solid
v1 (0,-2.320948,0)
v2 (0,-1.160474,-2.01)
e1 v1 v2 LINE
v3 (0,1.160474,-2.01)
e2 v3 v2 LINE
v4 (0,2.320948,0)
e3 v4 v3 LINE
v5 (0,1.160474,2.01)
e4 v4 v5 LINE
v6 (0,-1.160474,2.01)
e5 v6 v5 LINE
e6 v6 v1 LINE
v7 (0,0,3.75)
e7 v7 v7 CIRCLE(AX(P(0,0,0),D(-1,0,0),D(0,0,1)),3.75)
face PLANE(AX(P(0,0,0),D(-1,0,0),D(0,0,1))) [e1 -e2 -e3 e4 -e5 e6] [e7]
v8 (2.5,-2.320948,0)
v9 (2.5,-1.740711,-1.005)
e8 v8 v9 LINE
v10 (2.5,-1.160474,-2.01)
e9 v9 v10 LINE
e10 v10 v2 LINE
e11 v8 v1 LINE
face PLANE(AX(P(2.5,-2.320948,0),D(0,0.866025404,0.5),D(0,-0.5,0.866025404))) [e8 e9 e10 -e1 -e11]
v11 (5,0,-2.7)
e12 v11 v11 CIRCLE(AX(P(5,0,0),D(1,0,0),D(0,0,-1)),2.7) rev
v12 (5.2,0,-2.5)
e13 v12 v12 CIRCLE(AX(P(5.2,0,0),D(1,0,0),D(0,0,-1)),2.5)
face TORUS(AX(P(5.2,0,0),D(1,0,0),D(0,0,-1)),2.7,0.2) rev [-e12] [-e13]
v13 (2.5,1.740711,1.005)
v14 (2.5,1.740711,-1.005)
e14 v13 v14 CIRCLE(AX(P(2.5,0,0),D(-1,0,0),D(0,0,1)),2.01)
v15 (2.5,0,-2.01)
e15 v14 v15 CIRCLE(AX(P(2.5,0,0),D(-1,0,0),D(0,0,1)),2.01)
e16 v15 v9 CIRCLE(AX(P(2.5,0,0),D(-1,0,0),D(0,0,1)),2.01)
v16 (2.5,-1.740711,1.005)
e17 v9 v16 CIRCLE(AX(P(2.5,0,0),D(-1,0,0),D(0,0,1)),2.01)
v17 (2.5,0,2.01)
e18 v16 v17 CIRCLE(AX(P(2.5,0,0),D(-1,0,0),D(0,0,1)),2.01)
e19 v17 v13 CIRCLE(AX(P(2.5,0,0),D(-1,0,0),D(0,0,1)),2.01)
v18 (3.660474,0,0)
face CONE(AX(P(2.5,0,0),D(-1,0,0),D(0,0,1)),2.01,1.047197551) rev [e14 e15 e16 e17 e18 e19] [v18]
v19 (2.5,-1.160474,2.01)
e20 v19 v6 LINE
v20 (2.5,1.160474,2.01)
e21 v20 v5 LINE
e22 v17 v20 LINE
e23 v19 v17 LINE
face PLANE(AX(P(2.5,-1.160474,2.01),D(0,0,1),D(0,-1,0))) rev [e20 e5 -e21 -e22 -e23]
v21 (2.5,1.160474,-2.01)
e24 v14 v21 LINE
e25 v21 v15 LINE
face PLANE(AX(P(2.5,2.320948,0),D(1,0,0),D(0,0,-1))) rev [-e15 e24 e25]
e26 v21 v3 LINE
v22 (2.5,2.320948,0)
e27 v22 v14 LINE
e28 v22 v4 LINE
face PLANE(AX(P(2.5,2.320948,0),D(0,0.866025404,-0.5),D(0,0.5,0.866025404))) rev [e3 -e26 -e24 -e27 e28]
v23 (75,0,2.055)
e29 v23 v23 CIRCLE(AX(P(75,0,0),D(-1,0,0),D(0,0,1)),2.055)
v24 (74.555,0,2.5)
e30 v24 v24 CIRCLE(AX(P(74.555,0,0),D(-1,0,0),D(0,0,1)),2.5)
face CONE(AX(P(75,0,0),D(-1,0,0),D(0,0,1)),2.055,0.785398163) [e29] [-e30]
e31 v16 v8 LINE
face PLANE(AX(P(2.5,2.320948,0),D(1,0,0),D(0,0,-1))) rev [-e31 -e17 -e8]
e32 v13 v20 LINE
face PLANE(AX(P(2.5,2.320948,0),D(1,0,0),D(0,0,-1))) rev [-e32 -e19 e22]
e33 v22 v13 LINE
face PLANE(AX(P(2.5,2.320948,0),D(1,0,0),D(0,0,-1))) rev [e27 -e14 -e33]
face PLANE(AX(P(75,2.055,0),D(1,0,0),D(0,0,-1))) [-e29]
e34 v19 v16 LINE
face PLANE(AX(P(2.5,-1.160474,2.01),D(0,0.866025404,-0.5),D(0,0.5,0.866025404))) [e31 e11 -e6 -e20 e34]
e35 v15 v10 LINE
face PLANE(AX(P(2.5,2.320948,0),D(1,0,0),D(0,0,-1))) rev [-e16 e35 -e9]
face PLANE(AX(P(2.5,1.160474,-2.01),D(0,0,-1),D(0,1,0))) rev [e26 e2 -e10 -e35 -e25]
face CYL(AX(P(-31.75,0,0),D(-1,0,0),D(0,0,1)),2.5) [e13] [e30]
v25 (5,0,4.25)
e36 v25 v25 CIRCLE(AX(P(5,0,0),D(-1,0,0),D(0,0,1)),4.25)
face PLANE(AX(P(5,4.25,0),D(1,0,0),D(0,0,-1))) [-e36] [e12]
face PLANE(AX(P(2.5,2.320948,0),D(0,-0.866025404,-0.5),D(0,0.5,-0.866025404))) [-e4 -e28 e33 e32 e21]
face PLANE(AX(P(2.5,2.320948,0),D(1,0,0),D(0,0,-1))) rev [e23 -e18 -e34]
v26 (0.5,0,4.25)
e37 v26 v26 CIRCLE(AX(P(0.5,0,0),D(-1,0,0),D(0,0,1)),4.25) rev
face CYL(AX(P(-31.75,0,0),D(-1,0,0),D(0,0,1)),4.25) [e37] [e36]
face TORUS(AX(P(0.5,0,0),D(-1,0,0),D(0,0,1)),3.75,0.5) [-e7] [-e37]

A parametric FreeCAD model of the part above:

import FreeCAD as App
import Part
import Sketcher

V = App.Vector
Q = App.Units.Quantity


def edges_at(feature, points):
    """Names of the edges that pass closest to the given points."""
    edges = feature.Shape.Edges
    near = lambda p: min(range(len(edges)), key=lambda i: edges[i].distToShape(Part.Vertex(*p))[0])
    return sorted({f"Edge{near(p) + 1}" for p in points})

doc = App.newDocument("Part")
body = doc.addObject("PartDesign::Body", "Body")

sketch1 = body.newObject("Sketcher::SketchObject", "Sketch")
sketch1.AttachmentSupport = (doc.getObject("XY_Plane"), [""])
sketch1.MapMode = "FlatFace"
sketch1.addGeometry([
    Part.LineSegment(V(0, 4.2, 0), V(0, 0, 0)),
    Part.LineSegment(V(0, 0, 0), V(75, 0, 0)),
    Part.LineSegment(V(75, 0, 0), V(75, 2.1, 0)),
    Part.LineSegment(V(75, 2.1, 0), V(74.6, 2.5, 0)),
    Part.LineSegment(V(74.6, 2.5, 0), V(5, 2.5, 0)),
    Part.LineSegment(V(5, 2.5, 0), V(5, 4.2, 0)),
    Part.LineSegment(V(5, 4.2, 0), V(0, 4.2, 0)),
], False)
sketch1.addConstraint([
    Sketcher.Constraint("Coincident", 0, 2, 1, 1),
    Sketcher.Constraint("Coincident", 1, 2, 2, 1),
    Sketcher.Constraint("Coincident", 2, 2, 3, 1),
    Sketcher.Constraint("Coincident", 3, 2, 4, 1),
    Sketcher.Constraint("Coincident", 4, 2, 5, 1),
    Sketcher.Constraint("Coincident", 5, 2, 6, 1),
    Sketcher.Constraint("Coincident", 6, 2, 0, 1),
    Sketcher.Constraint("Vertical", 0),
    Sketcher.Constraint("Horizontal", 1),
    Sketcher.Constraint("Vertical", 2),
    Sketcher.Constraint("Horizontal", 4),
    Sketcher.Constraint("Vertical", 5),
    Sketcher.Constraint("Horizontal", 6),
    Sketcher.Constraint("Coincident", 0, 2, -1, 1),
    Sketcher.Constraint("DistanceX", 1, 1, 1, 2, 75.0),
    Sketcher.Constraint("DistanceX", 6, 2, 6, 1, 5.0),
    Sketcher.Constraint("Angle", 3, Q("135 deg")),
    Sketcher.Constraint("DistanceY", 0, 2, 0, 1, 4.25),
    Sketcher.Constraint("DistanceY", 5, 1, 5, 2, 1.75),
    Sketcher.Constraint("DistanceX", 4, 2, 4, 1, 69.555),
])
revolution = body.newObject("PartDesign::Revolution", "Revolution")
revolution.Profile = sketch1
revolution.ReferenceAxis = (sketch1, ["H_Axis"])
revolution.Angle = 360
doc.recompute()

fillet = body.newObject("PartDesign::Fillet", "Fillet")
fillet.Base = (revolution, edges_at(revolution, [(5, -2.5, 0)]))
fillet.Radius = 0.2
doc.recompute()

fillet2 = body.newObject("PartDesign::Fillet", "Fillet001")
fillet2.Base = (fillet, edges_at(fillet, [(0, -4.25, 0)]))
fillet2.Radius = 0.5

sketch2 = body.newObject("Sketcher::SketchObject", "Sketch001")
sketch2.AttachmentSupport = (doc.getObject("XY_Plane"), [""])
sketch2.MapMode = "FlatFace"
sketch2.addGeometry([
    Part.LineSegment(V(2.5, 2, 0), V(0, 2, 0)),
    Part.LineSegment(V(0, 2, 0), V(0, 0, 0)),
    Part.LineSegment(V(0, 0, 0), V(3.7, 0, 0)),
    Part.LineSegment(V(3.7, 0, 0), V(2.5, 2, 0)),
], False)
sketch2.addConstraint([
    Sketcher.Constraint("Coincident", 0, 2, 1, 1),
    Sketcher.Constraint("Coincident", 1, 2, 2, 1),
    Sketcher.Constraint("Coincident", 2, 2, 3, 1),
    Sketcher.Constraint("Coincident", 3, 2, 0, 1),
    Sketcher.Constraint("Horizontal", 0),
    Sketcher.Constraint("Vertical", 1),
    Sketcher.Constraint("Horizontal", 2),
    Sketcher.Constraint("Coincident", 1, 2, -1, 1),
    Sketcher.Constraint("Angle", 3, Q("120 deg")),
    Sketcher.Constraint("DistanceX", 0, 2, 0, 1, 2.5),
    Sketcher.Constraint("DistanceY", 1, 2, 1, 1, 2.01),
])
groove = body.newObject("PartDesign::Groove", "Groove")
groove.Profile = sketch2
groove.ReferenceAxis = (sketch2, ["H_Axis"])
groove.Angle = 360

sketch3 = body.newObject("Sketcher::SketchObject", "Sketch002")
sketch3.AttachmentSupport = (doc.getObject("YZ_Plane"), [""])
sketch3.MapMode = "FlatFace"
sketch3.addGeometry([
    Part.LineSegment(V(2.3, 0, 0), V(1.2, -2, 0)),
    Part.LineSegment(V(1.2, -2, 0), V(-1.2, -2, 0)),
    Part.LineSegment(V(-1.2, -2, 0), V(-2.3, 0, 0)),
    Part.LineSegment(V(-2.3, 0, 0), V(-1.2, 2, 0)),
    Part.LineSegment(V(-1.2, 2, 0), V(1.2, 2, 0)),
    Part.LineSegment(V(1.2, 2, 0), V(2.3, 0, 0)),
], False)
sketch3.addConstraint([
    Sketcher.Constraint("Coincident", 0, 2, 1, 1),
    Sketcher.Constraint("Coincident", 1, 2, 2, 1),
    Sketcher.Constraint("Coincident", 2, 2, 3, 1),
    Sketcher.Constraint("Coincident", 3, 2, 4, 1),
    Sketcher.Constraint("Coincident", 4, 2, 5, 1),
    Sketcher.Constraint("Coincident", 5, 2, 0, 1),
    Sketcher.Constraint("Horizontal", 1),
    Sketcher.Constraint("Horizontal", 4),
    Sketcher.Constraint("Symmetric", 0, 2, 3, 2, -1, 1),
    Sketcher.Constraint("Symmetric", 2, 2, 5, 2, -1, 1),
    Sketcher.Constraint("PointOnObject", 2, 2, -1),
    Sketcher.Constraint("Parallel", 2, 5),
    Sketcher.Constraint("Vertical", 1, 2, 3, 2),
    Sketcher.Constraint("Angle", 0, Q("-120 deg")),
    Sketcher.Constraint("DistanceY", 0, 2, -1, 1, 2.01),
    Sketcher.Constraint("DistanceX", 1, 2, 1, 1, 2.320948),
])
pocket1 = body.newObject("PartDesign::Pocket", "Pocket")
pocket1.Profile = sketch3
pocket1.Length = 2.5
pocket1.Reversed = True

doc.recompute()
